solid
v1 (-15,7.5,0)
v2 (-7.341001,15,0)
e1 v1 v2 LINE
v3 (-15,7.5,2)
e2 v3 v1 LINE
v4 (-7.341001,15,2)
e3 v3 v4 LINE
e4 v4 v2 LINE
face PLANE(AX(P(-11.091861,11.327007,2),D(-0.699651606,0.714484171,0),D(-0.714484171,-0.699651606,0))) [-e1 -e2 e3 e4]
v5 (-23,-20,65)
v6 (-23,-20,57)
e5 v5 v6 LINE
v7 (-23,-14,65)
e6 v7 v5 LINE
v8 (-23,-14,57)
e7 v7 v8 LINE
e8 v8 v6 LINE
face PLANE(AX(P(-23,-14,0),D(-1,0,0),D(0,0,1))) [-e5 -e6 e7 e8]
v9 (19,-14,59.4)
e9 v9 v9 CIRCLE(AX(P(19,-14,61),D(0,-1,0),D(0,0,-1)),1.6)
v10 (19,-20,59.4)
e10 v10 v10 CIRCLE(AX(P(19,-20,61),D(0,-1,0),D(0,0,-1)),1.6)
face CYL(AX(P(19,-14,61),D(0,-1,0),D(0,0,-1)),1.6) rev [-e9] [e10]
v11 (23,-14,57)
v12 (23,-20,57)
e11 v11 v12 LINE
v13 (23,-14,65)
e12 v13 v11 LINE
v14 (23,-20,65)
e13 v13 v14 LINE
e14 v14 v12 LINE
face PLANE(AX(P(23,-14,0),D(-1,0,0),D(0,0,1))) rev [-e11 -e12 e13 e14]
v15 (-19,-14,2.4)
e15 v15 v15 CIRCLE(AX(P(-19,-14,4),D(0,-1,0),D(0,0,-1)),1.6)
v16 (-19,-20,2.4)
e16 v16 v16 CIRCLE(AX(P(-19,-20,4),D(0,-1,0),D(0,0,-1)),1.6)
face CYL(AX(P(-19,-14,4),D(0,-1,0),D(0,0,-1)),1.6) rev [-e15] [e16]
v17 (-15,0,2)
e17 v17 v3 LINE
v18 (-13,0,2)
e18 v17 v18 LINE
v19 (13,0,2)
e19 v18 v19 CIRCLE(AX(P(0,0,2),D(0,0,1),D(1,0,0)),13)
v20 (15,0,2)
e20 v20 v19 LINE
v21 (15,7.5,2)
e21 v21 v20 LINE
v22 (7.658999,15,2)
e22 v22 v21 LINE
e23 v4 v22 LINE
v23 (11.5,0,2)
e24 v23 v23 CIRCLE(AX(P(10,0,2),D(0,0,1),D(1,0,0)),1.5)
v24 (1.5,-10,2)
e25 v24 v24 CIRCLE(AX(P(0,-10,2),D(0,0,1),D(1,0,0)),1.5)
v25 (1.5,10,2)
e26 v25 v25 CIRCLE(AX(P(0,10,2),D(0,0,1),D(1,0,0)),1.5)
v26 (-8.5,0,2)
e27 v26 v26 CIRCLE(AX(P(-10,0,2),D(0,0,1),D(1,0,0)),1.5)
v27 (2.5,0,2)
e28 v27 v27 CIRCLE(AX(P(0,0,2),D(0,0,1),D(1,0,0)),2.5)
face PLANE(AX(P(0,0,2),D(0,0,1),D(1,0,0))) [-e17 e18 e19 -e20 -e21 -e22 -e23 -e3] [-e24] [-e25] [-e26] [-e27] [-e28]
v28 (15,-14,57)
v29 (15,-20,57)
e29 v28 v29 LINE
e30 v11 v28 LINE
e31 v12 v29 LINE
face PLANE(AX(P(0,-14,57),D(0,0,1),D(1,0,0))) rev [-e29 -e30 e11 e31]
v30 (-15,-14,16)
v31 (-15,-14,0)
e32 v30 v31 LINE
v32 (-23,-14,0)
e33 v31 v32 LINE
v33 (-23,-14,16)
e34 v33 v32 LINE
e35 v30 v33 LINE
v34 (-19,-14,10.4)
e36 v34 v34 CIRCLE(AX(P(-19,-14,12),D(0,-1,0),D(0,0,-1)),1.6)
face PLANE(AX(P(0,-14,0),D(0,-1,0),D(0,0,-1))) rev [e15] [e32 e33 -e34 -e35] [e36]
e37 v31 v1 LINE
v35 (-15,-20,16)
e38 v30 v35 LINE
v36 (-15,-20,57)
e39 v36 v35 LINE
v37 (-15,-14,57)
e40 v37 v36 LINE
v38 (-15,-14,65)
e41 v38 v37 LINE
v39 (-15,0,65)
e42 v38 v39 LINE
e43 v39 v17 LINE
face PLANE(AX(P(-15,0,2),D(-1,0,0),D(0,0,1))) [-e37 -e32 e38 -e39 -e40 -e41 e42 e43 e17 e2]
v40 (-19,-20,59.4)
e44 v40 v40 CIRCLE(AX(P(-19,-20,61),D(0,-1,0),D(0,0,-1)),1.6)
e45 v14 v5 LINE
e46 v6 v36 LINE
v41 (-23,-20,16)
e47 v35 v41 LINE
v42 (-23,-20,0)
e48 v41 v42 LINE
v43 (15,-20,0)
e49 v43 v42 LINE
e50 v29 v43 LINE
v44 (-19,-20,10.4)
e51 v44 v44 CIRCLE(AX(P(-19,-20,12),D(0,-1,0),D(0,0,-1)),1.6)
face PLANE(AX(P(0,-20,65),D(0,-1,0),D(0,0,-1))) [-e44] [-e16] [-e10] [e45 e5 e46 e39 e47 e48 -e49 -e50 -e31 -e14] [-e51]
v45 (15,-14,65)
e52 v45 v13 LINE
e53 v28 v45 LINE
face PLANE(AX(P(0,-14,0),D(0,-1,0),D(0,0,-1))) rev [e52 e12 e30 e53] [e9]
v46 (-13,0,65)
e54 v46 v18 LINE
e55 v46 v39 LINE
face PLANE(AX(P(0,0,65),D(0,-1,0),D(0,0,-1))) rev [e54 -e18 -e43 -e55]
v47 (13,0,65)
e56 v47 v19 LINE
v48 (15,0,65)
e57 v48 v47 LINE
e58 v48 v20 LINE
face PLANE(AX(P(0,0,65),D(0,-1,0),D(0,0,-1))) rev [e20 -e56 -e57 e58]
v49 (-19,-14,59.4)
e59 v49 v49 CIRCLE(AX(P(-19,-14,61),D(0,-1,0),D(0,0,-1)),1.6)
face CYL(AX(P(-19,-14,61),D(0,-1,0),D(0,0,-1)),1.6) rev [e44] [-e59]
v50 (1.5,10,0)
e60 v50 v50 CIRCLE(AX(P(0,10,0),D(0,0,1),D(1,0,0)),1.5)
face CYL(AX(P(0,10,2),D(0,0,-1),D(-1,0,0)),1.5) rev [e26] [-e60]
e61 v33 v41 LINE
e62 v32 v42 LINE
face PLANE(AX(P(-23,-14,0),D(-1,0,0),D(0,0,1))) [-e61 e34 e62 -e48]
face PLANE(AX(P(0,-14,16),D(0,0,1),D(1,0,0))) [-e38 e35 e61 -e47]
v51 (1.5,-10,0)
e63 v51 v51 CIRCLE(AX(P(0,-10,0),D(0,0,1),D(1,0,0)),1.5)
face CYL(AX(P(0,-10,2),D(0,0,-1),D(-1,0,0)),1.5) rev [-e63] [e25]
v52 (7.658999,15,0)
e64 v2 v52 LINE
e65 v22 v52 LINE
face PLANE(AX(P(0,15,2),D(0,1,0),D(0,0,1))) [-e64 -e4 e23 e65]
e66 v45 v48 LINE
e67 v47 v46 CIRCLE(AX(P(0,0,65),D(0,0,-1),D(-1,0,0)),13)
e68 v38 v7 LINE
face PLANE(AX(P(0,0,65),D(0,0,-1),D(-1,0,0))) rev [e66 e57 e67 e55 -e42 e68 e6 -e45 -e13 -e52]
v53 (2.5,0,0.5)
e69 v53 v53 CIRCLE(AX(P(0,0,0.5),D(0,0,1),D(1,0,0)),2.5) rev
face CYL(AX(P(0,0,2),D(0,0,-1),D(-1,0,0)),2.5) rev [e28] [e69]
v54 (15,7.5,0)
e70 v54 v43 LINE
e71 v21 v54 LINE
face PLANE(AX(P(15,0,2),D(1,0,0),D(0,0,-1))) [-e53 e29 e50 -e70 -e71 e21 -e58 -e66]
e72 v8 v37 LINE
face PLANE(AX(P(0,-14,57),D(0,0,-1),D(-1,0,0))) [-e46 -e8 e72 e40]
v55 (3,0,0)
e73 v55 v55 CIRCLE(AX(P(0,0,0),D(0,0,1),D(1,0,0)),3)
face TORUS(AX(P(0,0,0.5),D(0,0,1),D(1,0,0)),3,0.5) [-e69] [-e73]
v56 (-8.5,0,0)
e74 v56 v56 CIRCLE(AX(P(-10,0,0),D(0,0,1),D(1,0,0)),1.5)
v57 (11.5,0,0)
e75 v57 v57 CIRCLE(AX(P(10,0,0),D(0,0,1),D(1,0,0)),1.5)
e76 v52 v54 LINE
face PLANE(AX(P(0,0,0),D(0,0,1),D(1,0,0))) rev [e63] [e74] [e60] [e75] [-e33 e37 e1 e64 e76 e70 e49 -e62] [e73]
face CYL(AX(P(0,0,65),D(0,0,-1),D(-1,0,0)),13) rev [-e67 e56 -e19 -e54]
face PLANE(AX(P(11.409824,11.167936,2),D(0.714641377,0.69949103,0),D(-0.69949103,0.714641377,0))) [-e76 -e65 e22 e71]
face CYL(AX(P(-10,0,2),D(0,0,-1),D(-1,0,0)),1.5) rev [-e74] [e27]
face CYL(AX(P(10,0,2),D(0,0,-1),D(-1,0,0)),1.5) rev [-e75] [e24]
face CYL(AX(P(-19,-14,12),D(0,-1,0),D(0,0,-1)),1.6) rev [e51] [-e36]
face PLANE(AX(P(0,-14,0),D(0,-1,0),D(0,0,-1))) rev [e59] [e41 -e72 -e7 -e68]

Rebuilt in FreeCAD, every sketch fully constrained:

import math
import FreeCAD as App
import Part
import Sketcher
from FreeCAD import Vector
Q = App.Units.Quantity


def edges_at(feature, points):
    """Names of the edges that pass closest to the given points."""
    edges = feature.Shape.Edges
    near = lambda p: min(range(len(edges)), key=lambda i: edges[i].distToShape(Part.Vertex(*p))[0])
    return sorted({f"Edge{near(p) + 1}" for p in points})


def add_polygon(sketch, points):
    """Adds a closed chain of lines whose ends are joined by coincident constraints."""
    first, n = sketch.GeometryCount, len(points)
    for a, b in zip(points, points[1:] + points[:1]):
        sketch.addGeometry(Part.LineSegment(App.Vector(*a, 0), App.Vector(*b, 0)), False)
    for i in range(n):
        sketch.addConstraint(Sketcher.Constraint("Coincident", first + i, 2, first + (i + 1) % n, 1))

doc = App.newDocument("Part")
params = doc.addObject("Spreadsheet::Sheet", "Params")
for row, (alias, value) in enumerate([
    ("sketch1_diameter", "3 mm"),
    ("sketch1_diameter2", "5 mm"),
    ("sketch1_radius", "13 mm"),
    ("sketch1_width", "2 mm"),
    ("sketch1_width2", "15 mm"),
    ("pad1_length", "2 mm"),
    ("sketch2_radius", "13 mm"),
    ("sketch2_width", "2 mm"),
    ("sketch2_height", "20 mm"),
    ("pad2_length", "65 mm"),
    ("fillet_radius", "0.5 mm"),
    ("sketch3_diameter", "3.2 mm"),
    ("sketch3_width", "8 mm"),
    ("sketch3_height", "16 mm"),
    ("pad3_length", "6 mm"),
], start=1):
    params.set(f"A{row}", alias)
    params.set(f"B{row}", "=" + value)
    params.setAlias(f"B{row}", alias)

body = doc.addObject("PartDesign::Body", "Body")

sketch1 = body.newObject("Sketcher::SketchObject", "Sketch")
sketch1.AttachmentSupport = (doc.getObject("XY_Plane"), [""])
sketch1.MapMode = "FlatFace"
sketch1.addGeometry([
    Part.LineSegment(Vector(-7.3, 15, 0), Vector(-15, 7.5, 0)),
    Part.LineSegment(Vector(-15, 7.5, 0), Vector(-15, 0, 0)),
    Part.LineSegment(Vector(-15, 0, 0), Vector(-13, 0, 0)),
    Part.ArcOfCircle(Part.Circle(Vector(0, 0, 0), Vector(0, 0, 1), 13), math.radians(180), math.radians(360)),
    Part.LineSegment(Vector(13, 0, 0), Vector(15, 0, 0)),
    Part.LineSegment(Vector(15, 0, 0), Vector(15, 7.5, 0)),
    Part.LineSegment(Vector(15, 7.5, 0), Vector(7.7, 15, 0)),
    Part.LineSegment(Vector(7.7, 15, 0), Vector(-7.3, 15, 0)),
    Part.Circle(Vector(0, -10, 0), Vector(0, 0, 1), 1.5),
    Part.Circle(Vector(-10, 0, 0), Vector(0, 0, 1), 1.5),
    Part.Circle(Vector(0, 0, 0), Vector(0, 0, 1), 2.5),
    Part.Circle(Vector(10, 0, 0), Vector(0, 0, 1), 1.5),
    Part.Circle(Vector(0, 10, 0), Vector(0, 0, 1), 1.5),
], False)
sketch1.addConstraint([
    Sketcher.Constraint("Coincident", 0, 2, 1, 1),
    Sketcher.Constraint("Coincident", 1, 2, 2, 1),
    Sketcher.Constraint("Coincident", 2, 2, 3, 1),
    Sketcher.Constraint("Coincident", 3, 2, 4, 1),
    Sketcher.Constraint("Coincident", 4, 2, 5, 1),
    Sketcher.Constraint("Coincident", 5, 2, 6, 1),
    Sketcher.Constraint("Coincident", 6, 2, 7, 1),
    Sketcher.Constraint("Coincident", 7, 2, 0, 1),
    Sketcher.Constraint("Vertical", 1),
    Sketcher.Constraint("Horizontal", 2),
    Sketcher.Constraint("Horizontal", 4),
    Sketcher.Constraint("Vertical", 5),
    Sketcher.Constraint("Horizontal", 7),
    Sketcher.Constraint("Coincident", 3, 3, -1, 1),
    Sketcher.Constraint("Coincident", 10, 3, -1, 1),
    Sketcher.Constraint("Equal", 8, 9),
    Sketcher.Constraint("Equal", 9, 11),
    Sketcher.Constraint("Equal", 11, 12),
    Sketcher.Constraint("Symmetric", 9, 3, 11, 3, -1, 1),
    Sketcher.Constraint("Symmetric", 8, 3, 12, 3, -1, 1),
    Sketcher.Constraint("Symmetric", 1, 2, 4, 2, -1, 1),
    Sketcher.Constraint("PointOnObject", 8, 3, -2),
    Sketcher.Constraint("PointOnObject", 9, 3, -1),
    Sketcher.Constraint("PointOnObject", 1, 2, -1),
    Sketcher.Constraint("Horizontal", 0, 2, 5, 2),
    Sketcher.Constraint("Diameter", 8, Q("3 mm")),
    Sketcher.Constraint("Diameter", 10, Q("5 mm")),
    Sketcher.Constraint("Radius", 3, Q("13 mm")),
    Sketcher.Constraint("DistanceX", 2, 1, 2, 2, Q("2 mm")),
    Sketcher.Constraint("DistanceX", 7, 2, 7, 1, Q("15 mm")),
    Sketcher.Constraint("DistanceY", 1, 2, 1, 1, Q("7.5 mm")),
    Sketcher.Constraint("DistanceY", 8, 3, -1, 1, Q("10 mm")),
    Sketcher.Constraint("DistanceX", 9, 3, -1, 1, Q("10 mm")),
    Sketcher.Constraint("DistanceY", -1, 1, 6, 2, Q("15 mm")),
    Sketcher.Constraint("DistanceX", -1, 1, 6, 2, Q("7.658999 mm")),
])
sketch1.setExpression("Constraints[25]", "Params.sketch1_diameter")
sketch1.setExpression("Constraints[26]", "Params.sketch1_diameter2")
sketch1.setExpression("Constraints[27]", "Params.sketch1_radius")
sketch1.setExpression("Constraints[28]", "Params.sketch1_width")
sketch1.setExpression("Constraints[29]", "Params.sketch1_width2")
pad1 = body.newObject("PartDesign::Pad", "Pad")
pad1.Profile = sketch1
pad1.setExpression("Length", "Params.pad1_length")

sketch2 = body.newObject("Sketcher::SketchObject", "Sketch001")
sketch2.AttachmentSupport = (doc.getObject("XY_Plane"), [""])
sketch2.MapMode = "FlatFace"
sketch2.addGeometry([
    Part.ArcOfCircle(Part.Circle(Vector(0, 0, 0), Vector(0, 0, 1), 13), math.radians(-180), math.radians(-90)),
    Part.ArcOfCircle(Part.Circle(Vector(0, 0, 0), Vector(0, 0, 1), 13), math.radians(-90), math.radians(0)),
    Part.LineSegment(Vector(13, 0, 0), Vector(15, 0, 0)),
    Part.LineSegment(Vector(15, 0, 0), Vector(15, -20, 0)),
    Part.LineSegment(Vector(15, -20, 0), Vector(-15, -20, 0)),
    Part.LineSegment(Vector(-15, -20, 0), Vector(-15, 0, 0)),
    Part.LineSegment(Vector(-15, 0, 0), Vector(-13, 0, 0)),
], False)
sketch2.addConstraint([
    Sketcher.Constraint("Tangent", 0, 2, 1, 1),
    Sketcher.Constraint("Coincident", 1, 2, 2, 1),
    Sketcher.Constraint("Coincident", 2, 2, 3, 1),
    Sketcher.Constraint("Coincident", 3, 2, 4, 1),
    Sketcher.Constraint("Coincident", 4, 2, 5, 1),
    Sketcher.Constraint("Coincident", 5, 2, 6, 1),
    Sketcher.Constraint("Coincident", 6, 2, 0, 1),
    Sketcher.Constraint("Horizontal", 2),
    Sketcher.Constraint("Vertical", 3),
    Sketcher.Constraint("Horizontal", 4),
    Sketcher.Constraint("Vertical", 5),
    Sketcher.Constraint("Horizontal", 6),
    Sketcher.Constraint("Coincident", 0, 3, -1, 1),
    Sketcher.Constraint("Equal", 0, 1),
    Sketcher.Constraint("Symmetric", 2, 2, 5, 2, -1, 1),
    Sketcher.Constraint("PointOnObject", 0, 2, -2),
    Sketcher.Constraint("PointOnObject", 1, 2, -1),
    Sketcher.Constraint("Radius", 0, Q("13 mm")),
    Sketcher.Constraint("DistanceX", 2, 1, 2, 2, Q("2 mm")),
    Sketcher.Constraint("DistanceY", 3, 2, 3, 1, Q("20 mm")),
])
sketch2.setExpression("Constraints[17]", "Params.sketch2_radius")
sketch2.setExpression("Constraints[18]", "Params.sketch2_width")
sketch2.setExpression("Constraints[19]", "Params.sketch2_height")
pad2 = body.newObject("PartDesign::Pad", "Pad001")
pad2.Profile = sketch2
pad2.setExpression("Length", "Params.pad2_length")
doc.recompute()

fillet = body.newObject("PartDesign::Fillet", "Fillet")
fillet.Base = (pad2, edges_at(pad2, [(-2.5, 0, 0)]))
fillet.setExpression("Radius", "Params.fillet_radius")

sketch3 = body.newObject("Sketcher::SketchObject", "Sketch002")
sketch3.AttachmentSupport = (doc.getObject("XZ_Plane"), [""])
sketch3.MapMode = "FlatFace"
sketch3.AttachmentOffset = App.Placement(Vector(0, 0, 20), App.Rotation())
add_polygon(sketch3, [(-23, 0), (-15, 0), (-15, 16), (-23, 16)])
sketch3.addGeometry(Part.Circle(Vector(-19, 4, 0), Vector(0, 0, 1), 1.6), False)
sketch3.addGeometry(Part.Circle(Vector(-19, 12, 0), Vector(0, 0, 1), 1.6), False)
add_polygon(sketch3, [(-23, 65), (-23, 57), (-15, 57), (-15, 65)])
sketch3.addGeometry(Part.Circle(Vector(-19, 61, 0), Vector(0, 0, 1), 1.6), False)
add_polygon(sketch3, [(15, 65), (15, 57), (23, 57), (23, 65)])
sketch3.addGeometry(Part.Circle(Vector(19, 61, 0), Vector(0, 0, 1), 1.6), False)
sketch3.addConstraint([
    Sketcher.Constraint("Horizontal", 0),
    Sketcher.Constraint("Vertical", 1),
    Sketcher.Constraint("Horizontal", 2),
    Sketcher.Constraint("Vertical", 3),
    Sketcher.Constraint("Vertical", 6),
    Sketcher.Constraint("Horizontal", 7),
    Sketcher.Constraint("Vertical", 8),
    Sketcher.Constraint("Horizontal", 9),
    Sketcher.Constraint("Vertical", 11),
    Sketcher.Constraint("Horizontal", 12),
    Sketcher.Constraint("Vertical", 13),
    Sketcher.Constraint("Horizontal", 14),
    Sketcher.Constraint("Equal", 4, 5),
    Sketcher.Constraint("Equal", 5, 10),
    Sketcher.Constraint("Equal", 10, 15),
    Sketcher.Constraint("Symmetric", 10, 3, 15, 3, -2),
    Sketcher.Constraint("Symmetric", 7, 2, 11, 2, -2),
    Sketcher.Constraint("Symmetric", 9, 2, 13, 2, -2),
    Sketcher.Constraint("PointOnObject", 0, 2, -1),
    Sketcher.Constraint("Vertical", 4, 3, 5, 3),
    Sketcher.Constraint("Vertical", 5, 3, 10, 3),
    Sketcher.Constraint("Vertical", 3, 2, 6, 2),
    Sketcher.Constraint("Vertical", 1, 2, 7, 2),
    Sketcher.Constraint("Equal", 14, 6),
    Sketcher.Constraint("Diameter", 4, Q("3.2 mm")),
    Sketcher.Constraint("DistanceX", 0, 1, 0, 2, Q("8 mm")),
    Sketcher.Constraint("DistanceY", 1, 1, 1, 2, Q("16 mm")),
    Sketcher.Constraint("DistanceX", 4, 3, -1, 1, Q("19 mm")),
    Sketcher.Constraint("DistanceY", -1, 1, 4, 3, Q("4 mm")),
    Sketcher.Constraint("DistanceY", -1, 1, 5, 3, Q("12 mm")),
    Sketcher.Constraint("DistanceY", -1, 1, 10, 3, Q("61 mm")),
    Sketcher.Constraint("DistanceX", 0, 2, -1, 1, Q("15 mm")),
    Sketcher.Constraint("DistanceY", -1, 1, 6, 2, Q("57 mm")),
])
sketch3.setExpression("Constraints[36]", "Params.sketch3_diameter")
sketch3.setExpression("Constraints[37]", "Params.sketch3_width")
sketch3.setExpression("Constraints[38]", "Params.sketch3_height")
pad3 = body.newObject("PartDesign::Pad", "Pad002")
pad3.Profile = sketch3
pad3.setExpression("Length", "Params.pad3_length")
pad3.Reversed = True

doc.recompute()
